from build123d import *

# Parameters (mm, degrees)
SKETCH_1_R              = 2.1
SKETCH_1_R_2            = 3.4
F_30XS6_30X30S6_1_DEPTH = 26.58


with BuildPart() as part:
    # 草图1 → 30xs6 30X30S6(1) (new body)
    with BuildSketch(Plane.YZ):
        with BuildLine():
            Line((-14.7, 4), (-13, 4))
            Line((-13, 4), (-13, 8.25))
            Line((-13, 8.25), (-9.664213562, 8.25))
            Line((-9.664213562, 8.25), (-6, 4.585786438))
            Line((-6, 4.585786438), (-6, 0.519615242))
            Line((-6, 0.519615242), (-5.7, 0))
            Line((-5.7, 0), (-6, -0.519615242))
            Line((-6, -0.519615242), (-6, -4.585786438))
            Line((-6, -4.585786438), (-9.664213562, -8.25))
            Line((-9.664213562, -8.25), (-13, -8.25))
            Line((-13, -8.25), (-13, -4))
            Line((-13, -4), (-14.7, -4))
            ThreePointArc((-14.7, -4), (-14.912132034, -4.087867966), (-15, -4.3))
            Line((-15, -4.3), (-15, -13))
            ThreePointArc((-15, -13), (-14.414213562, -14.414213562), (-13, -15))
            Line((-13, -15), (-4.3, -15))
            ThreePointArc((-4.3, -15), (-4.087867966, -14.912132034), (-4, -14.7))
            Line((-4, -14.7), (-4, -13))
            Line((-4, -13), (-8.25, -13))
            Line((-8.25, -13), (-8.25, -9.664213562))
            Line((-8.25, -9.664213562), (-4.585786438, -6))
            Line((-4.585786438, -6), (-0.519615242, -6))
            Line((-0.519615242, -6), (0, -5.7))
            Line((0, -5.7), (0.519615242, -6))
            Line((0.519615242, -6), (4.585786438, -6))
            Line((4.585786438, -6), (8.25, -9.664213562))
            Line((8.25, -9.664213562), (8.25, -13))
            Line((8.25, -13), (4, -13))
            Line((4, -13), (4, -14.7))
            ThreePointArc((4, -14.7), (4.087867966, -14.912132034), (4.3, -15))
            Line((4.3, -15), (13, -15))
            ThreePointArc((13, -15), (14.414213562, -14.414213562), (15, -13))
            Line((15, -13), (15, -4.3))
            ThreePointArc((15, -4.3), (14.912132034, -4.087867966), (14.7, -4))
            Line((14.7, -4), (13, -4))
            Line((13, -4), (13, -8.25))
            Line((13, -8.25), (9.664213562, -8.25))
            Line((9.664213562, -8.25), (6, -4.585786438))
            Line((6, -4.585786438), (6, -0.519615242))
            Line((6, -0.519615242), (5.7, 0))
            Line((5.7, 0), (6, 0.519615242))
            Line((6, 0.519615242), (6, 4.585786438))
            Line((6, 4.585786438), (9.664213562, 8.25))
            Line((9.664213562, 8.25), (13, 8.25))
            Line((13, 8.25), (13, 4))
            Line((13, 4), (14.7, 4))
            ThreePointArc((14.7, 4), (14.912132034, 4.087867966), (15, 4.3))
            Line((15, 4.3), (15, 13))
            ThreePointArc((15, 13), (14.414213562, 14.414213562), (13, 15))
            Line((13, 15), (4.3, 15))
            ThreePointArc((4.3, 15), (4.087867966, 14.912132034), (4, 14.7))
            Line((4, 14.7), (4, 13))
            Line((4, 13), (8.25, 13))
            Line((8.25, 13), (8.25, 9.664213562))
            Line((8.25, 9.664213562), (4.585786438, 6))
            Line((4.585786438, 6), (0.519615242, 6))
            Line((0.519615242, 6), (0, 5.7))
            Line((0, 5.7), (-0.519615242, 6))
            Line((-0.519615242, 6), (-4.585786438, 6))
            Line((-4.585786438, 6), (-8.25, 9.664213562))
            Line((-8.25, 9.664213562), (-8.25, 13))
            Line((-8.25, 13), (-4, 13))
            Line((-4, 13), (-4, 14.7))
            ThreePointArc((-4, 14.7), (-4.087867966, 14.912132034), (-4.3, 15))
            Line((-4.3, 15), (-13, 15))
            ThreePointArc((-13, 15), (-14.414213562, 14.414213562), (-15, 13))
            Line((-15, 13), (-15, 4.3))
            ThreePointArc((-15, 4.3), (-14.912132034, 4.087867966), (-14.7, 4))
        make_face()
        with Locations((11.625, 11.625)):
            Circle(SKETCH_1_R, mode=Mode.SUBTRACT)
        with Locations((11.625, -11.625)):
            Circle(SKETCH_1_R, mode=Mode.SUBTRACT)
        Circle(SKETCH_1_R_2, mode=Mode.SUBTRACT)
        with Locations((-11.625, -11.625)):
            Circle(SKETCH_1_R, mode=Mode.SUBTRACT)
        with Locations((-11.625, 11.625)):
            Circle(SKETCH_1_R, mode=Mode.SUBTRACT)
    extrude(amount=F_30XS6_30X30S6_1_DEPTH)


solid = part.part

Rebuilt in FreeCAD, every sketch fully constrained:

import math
import FreeCAD as App
import Part
import Sketcher
Q = App.Units.Quantity

doc = App.newDocument("Part")
params = doc.addObject("Spreadsheet::Sheet", "Params")
for row, (alias, value) in enumerate([
    ("sketch1_radius", "2 mm"),
    ("sketch1_diameter", "4.2 mm"),
    ("sketch1_diameter2", "6.8 mm"),
    ("sketch1_radius2", "0.3 mm"),
    ("sketch1_width", "8.7 mm"),
    ("pad1_length", "26.58 mm"),
], start=1):
    params.set(f"A{row}", alias)
    params.set(f"B{row}", "=" + value)
    params.setAlias(f"B{row}", alias)

body = doc.addObject("PartDesign::Body", "Body")

# Sketch on YZ plane
sketch1 = body.newObject("Sketcher::SketchObject", "Sketch")
sketch1.AttachmentSupport = (doc.getObject("YZ_Plane"), [""])
sketch1.MapMode = "FlatFace"
sketch1.addGeometry([
    Part.LineSegment(App.Vector(-14.7, 4, 0), App.Vector(-13, 4, 0)),  # 0
    Part.LineSegment(App.Vector(-13, 4, 0), App.Vector(-13, 8.25, 0)),  # 1
    Part.LineSegment(App.Vector(-13, 8.25, 0), App.Vector(-9.66, 8.25, 0)),  # 2
    Part.LineSegment(App.Vector(-9.66, 8.25, 0), App.Vector(-6, 4.59, 0)),  # 3
    Part.LineSegment(App.Vector(-6, 4.59, 0), App.Vector(-6, 0.52, 0)),  # 4
    Part.LineSegment(App.Vector(-6, 0.52, 0), App.Vector(-5.7, 0, 0)),  # 5
    Part.LineSegment(App.Vector(-5.7, 0, 0), App.Vector(-6, -0.52, 0)),  # 6
    Part.LineSegment(App.Vector(-6, -0.52, 0), App.Vector(-6, -4.59, 0)),  # 7
    Part.LineSegment(App.Vector(-6, -4.59, 0), App.Vector(-9.66, -8.25, 0)),  # 8
    Part.LineSegment(App.Vector(-9.66, -8.25, 0), App.Vector(-13, -8.25, 0)),  # 9
    Part.LineSegment(App.Vector(-13, -8.25, 0), App.Vector(-13, -4, 0)),  # 10
    Part.LineSegment(App.Vector(-13, -4, 0), App.Vector(-14.7, -4, 0)),  # 11
    Part.ArcOfCircle(Part.Circle(App.Vector(-14.7, -4.3, 0), App.Vector(0, 0, 1), 0.3), math.radians(90), math.radians(180)),  # 12
    Part.LineSegment(App.Vector(-15, -4.3, 0), App.Vector(-15, -13, 0)),  # 13
    Part.ArcOfCircle(Part.Circle(App.Vector(-13, -13, 0), App.Vector(0, 0, 1), 2), math.radians(-180), math.radians(-90)),  # 14
    Part.LineSegment(App.Vector(-13, -15, 0), App.Vector(-4.3, -15, 0)),  # 15
    Part.ArcOfCircle(Part.Circle(App.Vector(-4.3, -14.7, 0), App.Vector(0, 0, 1), 0.3), math.radians(-90), math.radians(0)),  # 16
    Part.LineSegment(App.Vector(-4, -14.7, 0), App.Vector(-4, -13, 0)),  # 17
    Part.LineSegment(App.Vector(-4, -13, 0), App.Vector(-8.25, -13, 0)),  # 18
    Part.LineSegment(App.Vector(-8.25, -13, 0), App.Vector(-8.25, -9.66, 0)),  # 19
    Part.LineSegment(App.Vector(-8.25, -9.66, 0), App.Vector(-4.59, -6, 0)),  # 20
    Part.LineSegment(App.Vector(-4.59, -6, 0), App.Vector(-0.52, -6, 0)),  # 21
    Part.LineSegment(App.Vector(-0.52, -6, 0), App.Vector(0, -5.7, 0)),  # 22
    Part.LineSegment(App.Vector(0, -5.7, 0), App.Vector(0.52, -6, 0)),  # 23
    Part.LineSegment(App.Vector(0.52, -6, 0), App.Vector(4.59, -6, 0)),  # 24
    Part.LineSegment(App.Vector(4.59, -6, 0), App.Vector(8.25, -9.66, 0)),  # 25
    Part.LineSegment(App.Vector(8.25, -9.66, 0), App.Vector(8.25, -13, 0)),  # 26
    Part.LineSegment(App.Vector(8.25, -13, 0), App.Vector(4, -13, 0)),  # 27
    Part.LineSegment(App.Vector(4, -13, 0), App.Vector(4, -14.7, 0)),  # 28
    Part.ArcOfCircle(Part.Circle(App.Vector(4.3, -14.7, 0), App.Vector(0, 0, 1), 0.3), math.radians(-180), math.radians(-90)),  # 29
    Part.LineSegment(App.Vector(4.3, -15, 0), App.Vector(13, -15, 0)),  # 30
    Part.ArcOfCircle(Part.Circle(App.Vector(13, -13, 0), App.Vector(0, 0, 1), 2), math.radians(-90), math.radians(0)),  # 31
    Part.LineSegment(App.Vector(15, -13, 0), App.Vector(15, -4.3, 0)),  # 32
    Part.ArcOfCircle(Part.Circle(App.Vector(14.7, -4.3, 0), App.Vector(0, 0, 1), 0.3), math.radians(0), math.radians(90)),  # 33
    Part.LineSegment(App.Vector(14.7, -4, 0), App.Vector(13, -4, 0)),  # 34
    Part.LineSegment(App.Vector(13, -4, 0), App.Vector(13, -8.25, 0)),  # 35
    Part.LineSegment(App.Vector(13, -8.25, 0), App.Vector(9.66, -8.25, 0)),  # 36
    Part.LineSegment(App.Vector(9.66, -8.25, 0), App.Vector(6, -4.59, 0)),  # 37
    Part.LineSegment(App.Vector(6, -4.59, 0), App.Vector(6, -0.52, 0)),  # 38
    Part.LineSegment(App.Vector(6, -0.52, 0), App.Vector(5.7, 0, 0)),  # 39
    Part.LineSegment(App.Vector(5.7, 0, 0), App.Vector(6, 0.52, 0)),  # 40
    Part.LineSegment(App.Vector(6, 0.52, 0), App.Vector(6, 4.59, 0)),  # 41
    Part.LineSegment(App.Vector(6, 4.59, 0), App.Vector(9.66, 8.25, 0)),  # 42
    Part.LineSegment(App.Vector(9.66, 8.25, 0), App.Vector(13, 8.25, 0)),  # 43
    Part.LineSegment(App.Vector(13, 8.25, 0), App.Vector(13, 4, 0)),  # 44
    Part.LineSegment(App.Vector(13, 4, 0), App.Vector(14.7, 4, 0)),  # 45
    Part.ArcOfCircle(Part.Circle(App.Vector(14.7, 4.3, 0), App.Vector(0, 0, 1), 0.3), math.radians(-90), math.radians(0)),  # 46
    Part.LineSegment(App.Vector(15, 4.3, 0), App.Vector(15, 13, 0)),  # 47
    Part.ArcOfCircle(Part.Circle(App.Vector(13, 13, 0), App.Vector(0, 0, 1), 2), math.radians(0), math.radians(90)),  # 48
    Part.LineSegment(App.Vector(13, 15, 0), App.Vector(4.3, 15, 0)),  # 49
    Part.ArcOfCircle(Part.Circle(App.Vector(4.3, 14.7, 0), App.Vector(0, 0, 1), 0.3), math.radians(90), math.radians(180)),  # 50
    Part.LineSegment(App.Vector(4, 14.7, 0), App.Vector(4, 13, 0)),  # 51
    Part.LineSegment(App.Vector(4, 13, 0), App.Vector(8.25, 13, 0)),  # 52
    Part.LineSegment(App.Vector(8.25, 13, 0), App.Vector(8.25, 9.66, 0)),  # 53
    Part.LineSegment(App.Vector(8.25, 9.66, 0), App.Vector(4.59, 6, 0)),  # 54
    Part.LineSegment(App.Vector(4.59, 6, 0), App.Vector(0.52, 6, 0)),  # 55
    Part.LineSegment(App.Vector(0.52, 6, 0), App.Vector(0, 5.7, 0)),  # 56
    Part.LineSegment(App.Vector(0, 5.7, 0), App.Vector(-0.52, 6, 0)),  # 57
    Part.LineSegment(App.Vector(-0.52, 6, 0), App.Vector(-4.59, 6, 0)),  # 58
    Part.LineSegment(App.Vector(-4.59, 6, 0), App.Vector(-8.25, 9.66, 0)),  # 59
    Part.LineSegment(App.Vector(-8.25, 9.66, 0), App.Vector(-8.25, 13, 0)),  # 60
    Part.LineSegment(App.Vector(-8.25, 13, 0), App.Vector(-4, 13, 0)),  # 61
    Part.LineSegment(App.Vector(-4, 13, 0), App.Vector(-4, 14.7, 0)),  # 62
    Part.ArcOfCircle(Part.Circle(App.Vector(-4.3, 14.7, 0), App.Vector(0, 0, 1), 0.3), math.radians(0), math.radians(90)),  # 63
    Part.LineSegment(App.Vector(-4.3, 15, 0), App.Vector(-13, 15, 0)),  # 64
    Part.ArcOfCircle(Part.Circle(App.Vector(-13, 13, 0), App.Vector(0, 0, 1), 2), math.radians(90), math.radians(180)),  # 65
    Part.LineSegment(App.Vector(-15, 13, 0), App.Vector(-15, 4.3, 0)),  # 66
    Part.ArcOfCircle(Part.Circle(App.Vector(-14.7, 4.3, 0), App.Vector(0, 0, 1), 0.3), math.radians(-180), math.radians(-90)),  # 67
    Part.Circle(App.Vector(-11.62, -11.62, 0), App.Vector(0, 0, 1), 2.1),  # 68
    Part.Circle(App.Vector(11.62, -11.62, 0), App.Vector(0, 0, 1), 2.1),  # 69
    Part.Circle(App.Vector(-11.62, 11.62, 0), App.Vector(0, 0, 1), 2.1),  # 70
    Part.Circle(App.Vector(0, 0, 0), App.Vector(0, 0, 1), 3.4),  # 71
    Part.Circle(App.Vector(11.62, 11.62, 0), App.Vector(0, 0, 1), 2.1),  # 72
], False)
sketch1.addConstraint([
    Sketcher.Constraint("Coincident", 0, 2, 1, 1),
    Sketcher.Constraint("Coincident", 1, 2, 2, 1),
    Sketcher.Constraint("Coincident", 2, 2, 3, 1),
    Sketcher.Constraint("Coincident", 3, 2, 4, 1),
    Sketcher.Constraint("Coincident", 4, 2, 5, 1),
    Sketcher.Constraint("Coincident", 5, 2, 6, 1),
    Sketcher.Constraint("Coincident", 6, 2, 7, 1),
    Sketcher.Constraint("Coincident", 7, 2, 8, 1),
    Sketcher.Constraint("Coincident", 8, 2, 9, 1),
    Sketcher.Constraint("Coincident", 9, 2, 10, 1),
    Sketcher.Constraint("Coincident", 10, 2, 11, 1),
    Sketcher.Constraint("Tangent", 11, 2, 12, 1),
    Sketcher.Constraint("Tangent", 12, 2, 13, 1),
    Sketcher.Constraint("Tangent", 13, 2, 14, 1),
    Sketcher.Constraint("Tangent", 14, 2, 15, 1),
    Sketcher.Constraint("Tangent", 15, 2, 16, 1),
    Sketcher.Constraint("Tangent", 16, 2, 17, 1),
    Sketcher.Constraint("Coincident", 17, 2, 18, 1),
    Sketcher.Constraint("Coincident", 18, 2, 19, 1),
    Sketcher.Constraint("Coincident", 19, 2, 20, 1),
    Sketcher.Constraint("Coincident", 20, 2, 21, 1),
    Sketcher.Constraint("Coincident", 21, 2, 22, 1),
    Sketcher.Constraint("Coincident", 22, 2, 23, 1),
    Sketcher.Constraint("Coincident", 23, 2, 24, 1),
    Sketcher.Constraint("Coincident", 24, 2, 25, 1),
    Sketcher.Constraint("Coincident", 25, 2, 26, 1),
    Sketcher.Constraint("Coincident", 26, 2, 27, 1),
    Sketcher.Constraint("Coincident", 27, 2, 28, 1),
    Sketcher.Constraint("Tangent", 28, 2, 29, 1),
    Sketcher.Constraint("Tangent", 29, 2, 30, 1),
    Sketcher.Constraint("Tangent", 30, 2, 31, 1),
    Sketcher.Constraint("Tangent", 31, 2, 32, 1),
    Sketcher.Constraint("Tangent", 32, 2, 33, 1),
    Sketcher.Constraint("Tangent", 33, 2, 34, 1),
    Sketcher.Constraint("Coincident", 34, 2, 35, 1),
    Sketcher.Constraint("Coincident", 35, 2, 36, 1),
    Sketcher.Constraint("Coincident", 36, 2, 37, 1),
    Sketcher.Constraint("Coincident", 37, 2, 38, 1),
    Sketcher.Constraint("Coincident", 38, 2, 39, 1),
    Sketcher.Constraint("Coincident", 39, 2, 40, 1),
    Sketcher.Constraint("Coincident", 40, 2, 41, 1),
    Sketcher.Constraint("Coincident", 41, 2, 42, 1),
    Sketcher.Constraint("Coincident", 42, 2, 43, 1),
    Sketcher.Constraint("Coincident", 43, 2, 44, 1),
    Sketcher.Constraint("Coincident", 44, 2, 45, 1),
    Sketcher.Constraint("Tangent", 45, 2, 46, 1),
    Sketcher.Constraint("Tangent", 46, 2, 47, 1),
    Sketcher.Constraint("Tangent", 47, 2, 48, 1),
    Sketcher.Constraint("Tangent", 48, 2, 49, 1),
    Sketcher.Constraint("Tangent", 49, 2, 50, 1),
    Sketcher.Constraint("Tangent", 50, 2, 51, 1),
    Sketcher.Constraint("Coincident", 51, 2, 52, 1),
    Sketcher.Constraint("Coincident", 52, 2, 53, 1),
    Sketcher.Constraint("Coincident", 53, 2, 54, 1),
    Sketcher.Constraint("Coincident", 54, 2, 55, 1),
    Sketcher.Constraint("Coincident", 55, 2, 56, 1),
    Sketcher.Constraint("Coincident", 56, 2, 57, 1),
    Sketcher.Constraint("Coincident", 57, 2, 58, 1),
    Sketcher.Constraint("Coincident", 58, 2, 59, 1),
    Sketcher.Constraint("Coincident", 59, 2, 60, 1),
    Sketcher.Constraint("Coincident", 60, 2, 61, 1),
    Sketcher.Constraint("Coincident", 61, 2, 62, 1),
    Sketcher.Constraint("Tangent", 62, 2, 63, 1),
    Sketcher.Constraint("Tangent", 63, 2, 64, 1),
    Sketcher.Constraint("Tangent", 64, 2, 65, 1),
    Sketcher.Constraint("Tangent", 65, 2, 66, 1),
    Sketcher.Constraint("Tangent", 66, 2, 67, 1),
    Sketcher.Constraint("Tangent", 67, 2, 0, 1),
    Sketcher.Constraint("Horizontal", 0),
    Sketcher.Constraint("Vertical", 1),
    Sketcher.Constraint("Horizontal", 2),
    Sketcher.Constraint("Vertical", 4),
    Sketcher.Constraint("Vertical", 7),
    Sketcher.Constraint("Horizontal", 9),
    Sketcher.Constraint("Vertical", 10),
    Sketcher.Constraint("Horizontal", 11),
    Sketcher.Constraint("Vertical", 13),
    Sketcher.Constraint("Horizontal", 15),
    Sketcher.Constraint("Vertical", 17),
    Sketcher.Constraint("Horizontal", 18),
    Sketcher.Constraint("Vertical", 19),
    Sketcher.Constraint("Horizontal", 21),
    Sketcher.Constraint("Horizontal", 24),
    Sketcher.Constraint("Vertical", 26),
    Sketcher.Constraint("Horizontal", 27),
    Sketcher.Constraint("Vertical", 28),
    Sketcher.Constraint("Horizontal", 30),
    Sketcher.Constraint("Vertical", 32),
    Sketcher.Constraint("Horizontal", 34),
    Sketcher.Constraint("Vertical", 35),
    Sketcher.Constraint("Horizontal", 36),
    Sketcher.Constraint("Vertical", 38),
    Sketcher.Constraint("Vertical", 41),
    Sketcher.Constraint("Horizontal", 43),
    Sketcher.Constraint("Vertical", 44),
    Sketcher.Constraint("Horizontal", 45),
    Sketcher.Constraint("Vertical", 47),
    Sketcher.Constraint("Horizontal", 49),
    Sketcher.Constraint("Vertical", 51),
    Sketcher.Constraint("Horizontal", 52),
    Sketcher.Constraint("Vertical", 53),
    Sketcher.Constraint("Horizontal", 55),
    Sketcher.Constraint("Horizontal", 58),
    Sketcher.Constraint("Vertical", 60),
    Sketcher.Constraint("Horizontal", 61),
    Sketcher.Constraint("Vertical", 62),
    Sketcher.Constraint("Horizontal", 64),
    Sketcher.Constraint("Vertical", 66),
    Sketcher.Constraint("Coincident", 71, 3, -1, 1),
    Sketcher.Constraint("Equal", 12, 16),
    Sketcher.Constraint("Equal", 16, 29),
    Sketcher.Constraint("Equal", 14, 31),
    Sketcher.Constraint("Equal", 29, 33),
    Sketcher.Constraint("Equal", 33, 46),
    Sketcher.Constraint("Equal", 31, 48),
    Sketcher.Constraint("Equal", 46, 50),
    Sketcher.Constraint("Equal", 50, 63),
    Sketcher.Constraint("Equal", 48, 65),
    Sketcher.Constraint("Equal", 63, 67),
    Sketcher.Constraint("Equal", 68, 69),
    Sketcher.Constraint("Equal", 69, 70),
    Sketcher.Constraint("Equal", 70, 72),
    Sketcher.Constraint("Symmetric", 12, 3, 46, 3, -1, 1),
    Sketcher.Constraint("Symmetric", 16, 3, 50, 3, -1, 1),
    Sketcher.Constraint("Symmetric", 29, 3, 63, 3, -1, 1),
    Sketcher.Constraint("Symmetric", 33, 3, 67, 3, -1, 1),
    Sketcher.Constraint("Symmetric", 69, 3, 70, 3, -1, 1),
    Sketcher.Constraint("Symmetric", 68, 3, 72, 3, -1, 1),
    Sketcher.Constraint("Symmetric", 1, 2, 35, 2, -1, 1),
    Sketcher.Constraint("Symmetric", 3, 2, 37, 2, -1, 1),
    Sketcher.Constraint("Symmetric", 5, 2, 39, 2, -1, 1),
    Sketcher.Constraint("Symmetric", 6, 2, 40, 2, -1, 1),
    Sketcher.Constraint("Symmetric", 8, 2, 42, 2, -1, 1),
    Sketcher.Constraint("Symmetric", 18, 2, 52, 2, -1, 1),
    Sketcher.Constraint("Symmetric", 20, 2, 54, 2, -1, 1),
    Sketcher.Constraint("Symmetric", 22, 2, 56, 2, -1, 1),
    Sketcher.Constraint("Symmetric", 23, 2, 57, 2, -1, 1),
    Sketcher.Constraint("Symmetric", 25, 2, 59, 2, -1, 1),
    Sketcher.Constraint("Symmetric", 16, 3, 29, 3, -2),
    Sketcher.Constraint("Symmetric", 12, 3, 33, 3, -2),
    Sketcher.Constraint("Symmetric", 68, 3, 69, 3, -2),
    Sketcher.Constraint("Symmetric", 21, 2, 23, 2, -2),
    Sketcher.Constraint("Symmetric", 19, 2, 25, 2, -2),
    Sketcher.Constraint("Symmetric", 9, 2, 35, 2, -2),
    Sketcher.Constraint("Symmetric", 7, 2, 37, 2, -2),
    Sketcher.Constraint("PointOnObject", 5, 2, -1),
    Sketcher.Constraint("PointOnObject", 22, 2, -2),
    Sketcher.Constraint("Perpendicular", 3, 8),
    Sketcher.Constraint("Parallel", 8, 20),
    Sketcher.Constraint("Perpendicular", 5, 22),
    Sketcher.Constraint("Perpendicular", 6, 23),
    Sketcher.Constraint("Perpendicular", 20, 25),
    Sketcher.Constraint("Parallel", 25, 37),
    Sketcher.Constraint("Perpendicular", 22, 39),
    Sketcher.Constraint("Perpendicular", 37, 42),
    Sketcher.Constraint("Parallel", 42, 54),
    Sketcher.Constraint("Perpendicular", 39, 56),
    Sketcher.Constraint("Perpendicular", 54, 59),
    Sketcher.Constraint("Horizontal", 13, 2, 17, 2),
    Sketcher.Constraint("Horizontal", 18, 2, 26, 2),
    Sketcher.Constraint("Horizontal", 52, 2, 60, 2),
    Sketcher.Constraint("Vertical", 65, 3, 0, 2),
    Sketcher.Constraint("Vertical", 2, 2, 8, 2),
    Sketcher.Constraint("Vertical", 35, 2, 43, 2),
    Sketcher.Constraint("Equal", 61, 1),
    Sketcher.Constraint("Equal", 58, 4),
    Sketcher.Constraint("Equal", 64, 13),
    Sketcher.Constraint("Equal", 43, 19),
    Sketcher.Constraint("Equal", 8, 20),
    Sketcher.Constraint("Equal", 6, 22),
    Sketcher.Constraint("Radius", 14, 2.0),
    Sketcher.Constraint("Diameter", 68, 4.2),
    Sketcher.Constraint("Diameter", 71, 6.8),
    Sketcher.Constraint("Radius", 12, 0.3),
    Sketcher.Constraint("Angle", 5, Q("-60 deg")),
    Sketcher.Constraint("DistanceX", 15, 1, 15, 2, 8.7),
    Sketcher.Constraint("DistanceX", 14, 3, -1, 1, 13.0),
    Sketcher.Constraint("DistanceX", 3, 2, -1, 1, 6.0),
    Sketcher.Constraint("Distance", 5, 0.6),
    Sketcher.Constraint("DistanceX", 18, 2, 18, 1, 4.25),
    Sketcher.Constraint("DistanceX", 68, 3, -1, 1, 11.625),
    Sketcher.Constraint("DistanceY", 68, 3, -1, 1, 11.625),
    Sketcher.Constraint("DistanceX", 21, 1, 21, 2, 4.066171),
])
sketch1.setExpression("Constraints[170]", "Params.sketch1_radius")
sketch1.setExpression("Constraints[171]", "Params.sketch1_diameter")
sketch1.setExpression("Constraints[172]", "Params.sketch1_diameter2")
sketch1.setExpression("Constraints[173]", "Params.sketch1_radius2")
sketch1.setExpression("Constraints[175]", "Params.sketch1_width")
pad1 = body.newObject("PartDesign::Pad", "Pad")
pad1.Profile = sketch1
pad1.setExpression("Length", "Params.pad1_length")

doc.recompute()
